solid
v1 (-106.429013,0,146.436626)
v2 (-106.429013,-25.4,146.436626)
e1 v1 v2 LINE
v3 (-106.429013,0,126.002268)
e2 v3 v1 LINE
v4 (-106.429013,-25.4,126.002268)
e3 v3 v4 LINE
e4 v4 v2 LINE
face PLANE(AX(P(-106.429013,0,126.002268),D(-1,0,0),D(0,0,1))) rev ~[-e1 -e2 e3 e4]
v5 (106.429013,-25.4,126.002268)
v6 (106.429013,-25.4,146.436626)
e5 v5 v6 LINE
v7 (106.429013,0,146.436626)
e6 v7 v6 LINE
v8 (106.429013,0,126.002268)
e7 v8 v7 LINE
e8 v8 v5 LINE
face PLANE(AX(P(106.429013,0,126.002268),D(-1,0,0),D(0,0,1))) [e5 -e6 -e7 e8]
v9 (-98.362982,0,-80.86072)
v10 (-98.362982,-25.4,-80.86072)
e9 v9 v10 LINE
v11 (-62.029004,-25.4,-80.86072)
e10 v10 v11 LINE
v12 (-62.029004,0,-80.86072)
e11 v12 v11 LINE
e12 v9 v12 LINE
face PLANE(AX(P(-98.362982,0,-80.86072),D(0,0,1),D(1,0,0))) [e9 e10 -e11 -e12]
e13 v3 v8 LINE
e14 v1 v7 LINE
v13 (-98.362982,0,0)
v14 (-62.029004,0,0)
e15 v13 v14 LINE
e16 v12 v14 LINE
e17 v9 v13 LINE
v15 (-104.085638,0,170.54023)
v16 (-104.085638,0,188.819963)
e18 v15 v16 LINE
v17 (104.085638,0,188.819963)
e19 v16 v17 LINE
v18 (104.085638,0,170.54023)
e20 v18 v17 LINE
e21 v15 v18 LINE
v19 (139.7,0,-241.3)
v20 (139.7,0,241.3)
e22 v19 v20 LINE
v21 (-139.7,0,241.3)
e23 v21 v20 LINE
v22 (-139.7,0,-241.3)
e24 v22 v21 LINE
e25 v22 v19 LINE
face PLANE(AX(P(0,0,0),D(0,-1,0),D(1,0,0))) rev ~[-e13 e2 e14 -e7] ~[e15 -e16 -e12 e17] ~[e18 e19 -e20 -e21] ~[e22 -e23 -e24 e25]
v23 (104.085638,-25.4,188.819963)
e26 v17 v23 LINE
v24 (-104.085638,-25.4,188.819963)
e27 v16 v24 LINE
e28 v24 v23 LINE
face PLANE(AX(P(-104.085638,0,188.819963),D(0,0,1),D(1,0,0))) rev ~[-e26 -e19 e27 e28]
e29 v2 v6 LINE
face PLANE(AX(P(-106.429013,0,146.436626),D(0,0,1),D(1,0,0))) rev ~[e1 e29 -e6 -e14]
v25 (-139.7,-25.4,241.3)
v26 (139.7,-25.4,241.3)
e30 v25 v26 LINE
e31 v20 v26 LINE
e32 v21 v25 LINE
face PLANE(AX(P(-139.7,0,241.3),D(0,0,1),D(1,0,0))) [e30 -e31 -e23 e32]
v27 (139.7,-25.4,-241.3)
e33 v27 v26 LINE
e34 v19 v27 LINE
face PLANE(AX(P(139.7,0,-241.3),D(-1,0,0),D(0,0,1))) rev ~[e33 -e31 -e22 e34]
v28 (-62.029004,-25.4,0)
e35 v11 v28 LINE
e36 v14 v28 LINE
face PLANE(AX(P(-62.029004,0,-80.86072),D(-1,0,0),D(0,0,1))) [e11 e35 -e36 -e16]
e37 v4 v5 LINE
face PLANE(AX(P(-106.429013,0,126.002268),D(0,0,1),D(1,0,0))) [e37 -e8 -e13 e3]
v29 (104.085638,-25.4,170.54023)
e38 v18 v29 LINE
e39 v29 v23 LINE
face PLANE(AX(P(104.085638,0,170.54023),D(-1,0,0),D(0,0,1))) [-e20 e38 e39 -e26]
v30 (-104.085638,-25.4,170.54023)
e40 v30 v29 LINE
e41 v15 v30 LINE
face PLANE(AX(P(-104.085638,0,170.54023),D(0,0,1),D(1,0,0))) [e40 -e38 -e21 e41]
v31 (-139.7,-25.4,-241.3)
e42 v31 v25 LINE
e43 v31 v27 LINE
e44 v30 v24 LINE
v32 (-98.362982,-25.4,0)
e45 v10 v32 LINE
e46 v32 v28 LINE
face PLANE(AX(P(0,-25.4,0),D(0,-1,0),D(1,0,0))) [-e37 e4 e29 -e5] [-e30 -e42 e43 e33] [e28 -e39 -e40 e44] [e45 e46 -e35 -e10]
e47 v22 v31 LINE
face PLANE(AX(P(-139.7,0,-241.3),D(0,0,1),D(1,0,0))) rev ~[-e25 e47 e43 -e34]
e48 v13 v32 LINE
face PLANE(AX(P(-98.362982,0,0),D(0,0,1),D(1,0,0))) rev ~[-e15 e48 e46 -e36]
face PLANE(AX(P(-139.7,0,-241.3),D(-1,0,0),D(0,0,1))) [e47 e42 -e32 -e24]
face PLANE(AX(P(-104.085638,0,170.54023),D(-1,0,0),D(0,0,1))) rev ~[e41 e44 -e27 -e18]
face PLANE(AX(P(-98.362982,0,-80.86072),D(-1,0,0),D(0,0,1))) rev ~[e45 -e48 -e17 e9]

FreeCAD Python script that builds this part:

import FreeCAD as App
import Part
import Sketcher

V = App.Vector
Q = App.Units.Quantity


def add_polygon(sketch, points):
    """Adds a closed chain of lines whose ends are joined by coincident constraints."""
    first, n = sketch.GeometryCount, len(points)
    for a, b in zip(points, points[1:] + points[:1]):
        sketch.addGeometry(Part.LineSegment(App.Vector(*a, 0), App.Vector(*b, 0)), False)
    for i in range(n):
        sketch.addConstraint(Sketcher.Constraint("Coincident", first + i, 2, first + (i + 1) % n, 1))

doc = App.newDocument("Part")
body = doc.addObject("PartDesign::Body", "Body")

# Sketch on XZ plane
sketch1 = doc.addObject("Sketcher::SketchObject", "Sketch")
body.addObject(sketch1)
sketch1.AttachmentSupport = (doc.XZ_Plane, [""])
sketch1.MapMode = "FlatFace"
add_polygon(sketch1, [(-140, 241), (-140, -241), (140, -241), (140, 241)])  # lines 0-3
add_polygon(sketch1, [(-62, -81), (-98, -81), (-98, 0), (-62, 0)])  # lines 4-7
add_polygon(sketch1, [(106, 126), (-106, 126), (-106, 146), (106, 146)])  # lines 8-11
add_polygon(sketch1, [(104, 171), (-104, 171), (-104, 189), (104, 189)])  # lines 12-15
sketch1.addConstraint(Sketcher.Constraint("Vertical", 0))
sketch1.addConstraint(Sketcher.Constraint("Horizontal", 1))
sketch1.addConstraint(Sketcher.Constraint("Vertical", 2))
sketch1.addConstraint(Sketcher.Constraint("Horizontal", 3))
sketch1.addConstraint(Sketcher.Constraint("Horizontal", 4))
sketch1.addConstraint(Sketcher.Constraint("Vertical", 5))
sketch1.addConstraint(Sketcher.Constraint("Horizontal", 6))
sketch1.addConstraint(Sketcher.Constraint("Vertical", 7))
sketch1.addConstraint(Sketcher.Constraint("Horizontal", 8))
sketch1.addConstraint(Sketcher.Constraint("Vertical", 9))
sketch1.addConstraint(Sketcher.Constraint("Horizontal", 10))
sketch1.addConstraint(Sketcher.Constraint("Vertical", 11))
sketch1.addConstraint(Sketcher.Constraint("Horizontal", 12))
sketch1.addConstraint(Sketcher.Constraint("Vertical", 13))
sketch1.addConstraint(Sketcher.Constraint("Horizontal", 14))
sketch1.addConstraint(Sketcher.Constraint("Vertical", 15))
sketch1.addConstraint(Sketcher.Constraint("Symmetric", 0, 2, 2, 2, -1, 1))
sketch1.addConstraint(Sketcher.Constraint("PointOnObject", 5, 2, -1))
sketch1.addConstraint(Sketcher.Constraint("DistanceX", 1, 1, 1, 2, Q("11 in")))
sketch1.addConstraint(Sketcher.Constraint("DistanceY", 0, 2, 0, 1, Q("19 in")))
sketch1.addConstraint(Sketcher.Constraint("DistanceX", 4, 2, 4, 1, 36.333978))
sketch1.addConstraint(Sketcher.Constraint("DistanceY", 5, 1, 5, 2, 80.860719))
sketch1.addConstraint(Sketcher.Constraint("DistanceY", 9, 1, 9, 2, 20.434359))
sketch1.addConstraint(Sketcher.Constraint("DistanceX", 8, 2, 8, 1, 212.858026))
sketch1.addConstraint(Sketcher.Constraint("DistanceX", 12, 2, 12, 1, 208.171276))
sketch1.addConstraint(Sketcher.Constraint("DistanceY", 13, 1, 13, 2, 18.279733))
sketch1.addConstraint(Sketcher.Constraint("DistanceX", 12, 2, -1, 1, 104.085638))
sketch1.addConstraint(Sketcher.Constraint("DistanceY", -1, 1, 12, 2, 170.54023))
sketch1.addConstraint(Sketcher.Constraint("DistanceX", 4, 2, 1, 2, 238.062982))
sketch1.addConstraint(Sketcher.Constraint("DistanceX", 8, 2, 5, 2, 8.066031))
sketch1.addConstraint(Sketcher.Constraint("DistanceY", 5, 2, 8, 2, 126.002268))
pad1 = doc.addObject("PartDesign::Pad", "Pad")
body.addObject(pad1)
pad1.Profile = sketch1
pad1.Length = Q("1 in")

doc.recompute()
